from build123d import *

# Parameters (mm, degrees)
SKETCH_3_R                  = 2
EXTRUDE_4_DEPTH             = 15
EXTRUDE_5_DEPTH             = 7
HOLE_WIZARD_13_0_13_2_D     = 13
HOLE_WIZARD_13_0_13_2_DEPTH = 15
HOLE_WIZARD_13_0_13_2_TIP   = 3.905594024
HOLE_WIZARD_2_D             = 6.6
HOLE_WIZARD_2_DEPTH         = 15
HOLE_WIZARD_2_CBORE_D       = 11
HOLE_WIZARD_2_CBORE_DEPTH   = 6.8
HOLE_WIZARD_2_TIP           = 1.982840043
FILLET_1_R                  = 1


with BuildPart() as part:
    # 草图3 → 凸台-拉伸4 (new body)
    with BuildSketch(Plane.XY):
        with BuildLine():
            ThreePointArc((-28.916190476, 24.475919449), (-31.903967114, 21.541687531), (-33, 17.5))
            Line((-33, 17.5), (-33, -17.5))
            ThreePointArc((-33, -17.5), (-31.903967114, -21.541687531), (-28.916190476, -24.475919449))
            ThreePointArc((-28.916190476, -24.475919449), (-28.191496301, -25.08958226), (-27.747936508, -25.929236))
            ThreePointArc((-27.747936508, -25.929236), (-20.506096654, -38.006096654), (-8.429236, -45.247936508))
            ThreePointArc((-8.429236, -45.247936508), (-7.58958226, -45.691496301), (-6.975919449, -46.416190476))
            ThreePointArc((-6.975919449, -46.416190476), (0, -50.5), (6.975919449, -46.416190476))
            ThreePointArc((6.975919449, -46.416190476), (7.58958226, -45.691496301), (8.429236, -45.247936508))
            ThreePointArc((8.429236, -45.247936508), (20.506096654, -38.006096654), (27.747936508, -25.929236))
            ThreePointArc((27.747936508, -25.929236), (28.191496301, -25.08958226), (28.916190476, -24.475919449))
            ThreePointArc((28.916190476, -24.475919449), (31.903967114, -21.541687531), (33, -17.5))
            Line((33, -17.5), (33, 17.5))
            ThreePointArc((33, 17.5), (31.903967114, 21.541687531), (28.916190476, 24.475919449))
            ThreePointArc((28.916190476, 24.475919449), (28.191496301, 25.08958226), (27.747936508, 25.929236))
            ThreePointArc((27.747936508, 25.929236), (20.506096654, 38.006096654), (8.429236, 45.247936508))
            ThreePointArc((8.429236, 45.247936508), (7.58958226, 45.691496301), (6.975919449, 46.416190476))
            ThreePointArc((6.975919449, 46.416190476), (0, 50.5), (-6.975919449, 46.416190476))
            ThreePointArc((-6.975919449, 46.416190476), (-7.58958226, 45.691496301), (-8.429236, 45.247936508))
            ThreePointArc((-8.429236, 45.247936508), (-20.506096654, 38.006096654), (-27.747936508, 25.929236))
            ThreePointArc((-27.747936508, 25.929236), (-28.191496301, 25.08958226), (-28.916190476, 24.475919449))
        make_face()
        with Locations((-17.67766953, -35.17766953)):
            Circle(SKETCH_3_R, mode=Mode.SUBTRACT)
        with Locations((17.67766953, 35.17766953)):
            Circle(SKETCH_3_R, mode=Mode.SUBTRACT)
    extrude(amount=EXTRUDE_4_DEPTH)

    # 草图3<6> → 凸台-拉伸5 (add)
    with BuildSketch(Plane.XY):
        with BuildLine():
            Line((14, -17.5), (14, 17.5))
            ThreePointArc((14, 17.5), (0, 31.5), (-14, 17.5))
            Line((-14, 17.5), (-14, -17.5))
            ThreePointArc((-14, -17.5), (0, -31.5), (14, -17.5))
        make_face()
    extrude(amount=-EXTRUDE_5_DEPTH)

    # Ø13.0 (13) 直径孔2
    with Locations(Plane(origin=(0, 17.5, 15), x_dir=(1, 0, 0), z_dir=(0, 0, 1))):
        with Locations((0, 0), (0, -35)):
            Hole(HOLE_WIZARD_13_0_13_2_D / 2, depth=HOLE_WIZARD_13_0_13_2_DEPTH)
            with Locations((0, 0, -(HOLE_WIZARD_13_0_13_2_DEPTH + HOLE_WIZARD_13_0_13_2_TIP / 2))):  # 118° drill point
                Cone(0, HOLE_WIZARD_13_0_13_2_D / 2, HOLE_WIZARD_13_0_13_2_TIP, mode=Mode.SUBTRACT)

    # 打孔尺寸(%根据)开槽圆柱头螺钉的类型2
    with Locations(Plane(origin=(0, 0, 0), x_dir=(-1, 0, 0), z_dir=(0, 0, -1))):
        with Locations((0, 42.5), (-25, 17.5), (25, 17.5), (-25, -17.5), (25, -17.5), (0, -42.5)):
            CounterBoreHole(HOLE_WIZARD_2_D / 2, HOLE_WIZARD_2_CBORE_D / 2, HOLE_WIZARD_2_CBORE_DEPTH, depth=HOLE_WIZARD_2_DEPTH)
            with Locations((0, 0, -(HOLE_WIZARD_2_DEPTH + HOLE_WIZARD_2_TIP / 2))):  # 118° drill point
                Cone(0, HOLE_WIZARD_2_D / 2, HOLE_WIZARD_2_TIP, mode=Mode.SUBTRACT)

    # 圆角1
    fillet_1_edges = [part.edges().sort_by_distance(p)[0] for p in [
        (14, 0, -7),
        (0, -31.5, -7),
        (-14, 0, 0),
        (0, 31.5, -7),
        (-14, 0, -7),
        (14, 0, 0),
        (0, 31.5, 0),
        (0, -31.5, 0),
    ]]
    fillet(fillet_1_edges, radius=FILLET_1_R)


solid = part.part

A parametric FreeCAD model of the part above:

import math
import FreeCAD as App
import Part
import Sketcher
Q = App.Units.Quantity


def edges_at(feature, points):
    """Names of the edges that pass closest to the given points."""
    edges = feature.Shape.Edges
    near = lambda p: min(range(len(edges)), key=lambda i: edges[i].distToShape(Part.Vertex(*p))[0])
    return sorted({f"Edge{near(p) + 1}" for p in points})

doc = App.newDocument("Part")
body = doc.addObject("PartDesign::Body", "Body")

# Sketch on XY plane
sketch1 = body.newObject("Sketcher::SketchObject", "Sketch")
sketch1.AttachmentSupport = (doc.getObject("XY_Plane"), [""])
sketch1.MapMode = "FlatFace"
sketch1.addGeometry([
    Part.ArcOfCircle(Part.Circle(App.Vector(-25, 17.5, 0), App.Vector(0, 0, 1), 8), math.radians(119), math.radians(180)),  # 0
    Part.LineSegment(App.Vector(-33, 17.5, 0), App.Vector(-33, -17.5, 0)),  # 1
    Part.ArcOfCircle(Part.Circle(App.Vector(-25, -17.5, 0), App.Vector(0, 0, 1), 8), math.radians(180), math.radians(241)),  # 2
    Part.ArcOfCircle(Part.Circle(App.Vector(-30.1, -26.7, 0), App.Vector(0, 0, 1), 2.5), math.radians(17), math.radians(61)),  # 3
    Part.ArcOfCircle(Part.Circle(App.Vector(0, -17.5, 0), App.Vector(0, 0, 1), 29), math.radians(-163), math.radians(-107)),  # 4
    Part.ArcOfCircle(Part.Circle(App.Vector(-9.2, -47.6, 0), App.Vector(0, 0, 1), 2.5), math.radians(29), math.radians(73)),  # 5
    Part.ArcOfCircle(Part.Circle(App.Vector(0, -42.5, 0), App.Vector(0, 0, 1), 8), math.radians(-151), math.radians(-29)),  # 6
    Part.ArcOfCircle(Part.Circle(App.Vector(9.2, -47.6, 0), App.Vector(0, 0, 1), 2.5), math.radians(107), math.radians(151)),  # 7
    Part.ArcOfCircle(Part.Circle(App.Vector(0, -17.5, 0), App.Vector(0, 0, 1), 29), math.radians(-73), math.radians(-17)),  # 8
    Part.ArcOfCircle(Part.Circle(App.Vector(30.1, -26.7, 0), App.Vector(0, 0, 1), 2.5), math.radians(119), math.radians(163)),  # 9
    Part.ArcOfCircle(Part.Circle(App.Vector(25, -17.5, 0), App.Vector(0, 0, 1), 8), math.radians(-61), math.radians(0)),  # 10
    Part.LineSegment(App.Vector(33, -17.5, 0), App.Vector(33, 17.5, 0)),  # 11
    Part.ArcOfCircle(Part.Circle(App.Vector(25, 17.5, 0), App.Vector(0, 0, 1), 8), math.radians(0), math.radians(61)),  # 12
    Part.ArcOfCircle(Part.Circle(App.Vector(30.1, 26.7, 0), App.Vector(0, 0, 1), 2.5), math.radians(-163), math.radians(-119)),  # 13
    Part.ArcOfCircle(Part.Circle(App.Vector(0, 17.5, 0), App.Vector(0, 0, 1), 29), math.radians(17), math.radians(73)),  # 14
    Part.ArcOfCircle(Part.Circle(App.Vector(9.2, 47.6, 0), App.Vector(0, 0, 1), 2.5), math.radians(-151), math.radians(-107)),  # 15
    Part.ArcOfCircle(Part.Circle(App.Vector(0, 42.5, 0), App.Vector(0, 0, 1), 8), math.radians(29), math.radians(151)),  # 16
    Part.ArcOfCircle(Part.Circle(App.Vector(-9.2, 47.6, 0), App.Vector(0, 0, 1), 2.5), math.radians(-73), math.radians(-29)),  # 17
    Part.ArcOfCircle(Part.Circle(App.Vector(0, 17.5, 0), App.Vector(0, 0, 1), 29), math.radians(107), math.radians(163)),  # 18
    Part.ArcOfCircle(Part.Circle(App.Vector(-30.1, 26.7, 0), App.Vector(0, 0, 1), 2.5), math.radians(-61), math.radians(-17)),  # 19
    Part.Circle(App.Vector(-17.7, -35.2, 0), App.Vector(0, 0, 1), 2),  # 20
    Part.Circle(App.Vector(17.7, 35.2, 0), App.Vector(0, 0, 1), 2),  # 21
], False)
sketch1.addConstraint([
    Sketcher.Constraint("Tangent", 0, 2, 1, 1),
    Sketcher.Constraint("Tangent", 1, 2, 2, 1),
    Sketcher.Constraint("Tangent", 2, 2, 3, 2),
    Sketcher.Constraint("Tangent", 3, 1, 4, 1),
    Sketcher.Constraint("Tangent", 4, 2, 5, 2),
    Sketcher.Constraint("Tangent", 5, 1, 6, 1),
    Sketcher.Constraint("Tangent", 6, 2, 7, 2),
    Sketcher.Constraint("Tangent", 7, 1, 8, 1),
    Sketcher.Constraint("Tangent", 8, 2, 9, 2),
    Sketcher.Constraint("Tangent", 9, 1, 10, 1),
    Sketcher.Constraint("Tangent", 10, 2, 11, 1),
    Sketcher.Constraint("Tangent", 11, 2, 12, 1),
    Sketcher.Constraint("Tangent", 12, 2, 13, 2),
    Sketcher.Constraint("Tangent", 13, 1, 14, 1),
    Sketcher.Constraint("Tangent", 14, 2, 15, 2),
    Sketcher.Constraint("Tangent", 15, 1, 16, 1),
    Sketcher.Constraint("Tangent", 16, 2, 17, 2),
    Sketcher.Constraint("Tangent", 17, 1, 18, 1),
    Sketcher.Constraint("Tangent", 18, 2, 19, 2),
    Sketcher.Constraint("Tangent", 19, 1, 0, 1),
    Sketcher.Constraint("Vertical", 1),
    Sketcher.Constraint("Vertical", 11),
    Sketcher.Constraint("Coincident", 8, 3, 4, 3),
    Sketcher.Constraint("Coincident", 18, 3, 14, 3),
    Sketcher.Constraint("Equal", 0, 2),
    Sketcher.Constraint("Equal", 3, 5),
    Sketcher.Constraint("Equal", 2, 6),
    Sketcher.Constraint("Equal", 5, 7),
    Sketcher.Constraint("Equal", 4, 8),
    Sketcher.Constraint("Equal", 7, 9),
    Sketcher.Constraint("Equal", 6, 10),
    Sketcher.Constraint("Equal", 10, 12),
    Sketcher.Constraint("Equal", 9, 13),
    Sketcher.Constraint("Equal", 8, 14),
    Sketcher.Constraint("Equal", 13, 15),
    Sketcher.Constraint("Equal", 12, 16),
    Sketcher.Constraint("Equal", 15, 17),
    Sketcher.Constraint("Equal", 14, 18),
    Sketcher.Constraint("Equal", 17, 19),
    Sketcher.Constraint("Equal", 20, 21),
    Sketcher.Constraint("Symmetric", 0, 3, 10, 3, -1, 1),
    Sketcher.Constraint("Symmetric", 3, 3, 13, 3, -1, 1),
    Sketcher.Constraint("Symmetric", 5, 3, 15, 3, -1, 1),
    Sketcher.Constraint("Symmetric", 20, 3, 21, 3, -1, 1),
    Sketcher.Constraint("Symmetric", 5, 3, 7, 3, -2),
    Sketcher.Constraint("PointOnObject", 16, 3, -2),
    Sketcher.Constraint("Horizontal", 2, 3, 4, 3),
    Sketcher.Constraint("Horizontal", 3, 3, 9, 3),
    Sketcher.Constraint("Diameter", 20, Q("4 mm")),
    Sketcher.Constraint("Radius", 0, Q("8 mm")),
    Sketcher.Constraint("Radius", 4, Q("29 mm")),
    Sketcher.Constraint("Radius", 3, Q("2.5 mm")),
    Sketcher.Constraint("DistanceY", 1, 2, 1, 1, Q("35 mm")),
    Sketcher.Constraint("DistanceX", 0, 3, -1, 1, Q("25 mm")),
    Sketcher.Constraint("DistanceY", 6, 3, 4, 3, Q("25 mm")),
    Sketcher.Constraint("DistanceX", 20, 3, -1, 1, Q("17.67767 mm")),
    Sketcher.Constraint("DistanceY", 20, 3, -1, 1, Q("35.17767 mm")),
])
pad1 = body.newObject("PartDesign::Pad", "Pad")
pad1.Profile = sketch1
pad1.Length = 15

# Sketch on XY plane
sketch2 = body.newObject("Sketcher::SketchObject", "Sketch001")
sketch2.AttachmentSupport = (doc.getObject("XY_Plane"), [""])
sketch2.MapMode = "FlatFace"
sketch2.addGeometry([
    Part.LineSegment(App.Vector(14, -18, 0), App.Vector(14, 18, 0)),
    Part.ArcOfCircle(Part.Circle(App.Vector(0, 18, 0), App.Vector(0, 0, 1), 14), math.radians(0), math.radians(180)),
    Part.LineSegment(App.Vector(-14, 18, 0), App.Vector(-14, -18, 0)),
    Part.ArcOfCircle(Part.Circle(App.Vector(0, -18, 0), App.Vector(0, 0, 1), 14), math.radians(180), math.radians(360)),
], False)
sketch2.addConstraint([
    Sketcher.Constraint("Tangent", 0, 2, 1, 1),
    Sketcher.Constraint("Tangent", 1, 2, 2, 1),
    Sketcher.Constraint("Tangent", 2, 2, 3, 1),
    Sketcher.Constraint("Tangent", 3, 2, 0, 1),
    Sketcher.Constraint("Vertical", 0),
    Sketcher.Constraint("Vertical", 2),
    Sketcher.Constraint("Symmetric", 1, 3, 3, 3, -1, 1),
    Sketcher.Constraint("Radius", 1, Q("14 mm")),
    Sketcher.Constraint("DistanceY", 0, 1, 0, 2, Q("35 mm")),
])
pad2 = body.newObject("PartDesign::Pad", "Pad001")
pad2.Profile = sketch2
pad2.Length = 7
pad2.Reversed = True

# Sketch on XY plane
sketch3 = body.newObject("Sketcher::SketchObject", "Sketch002")
sketch3.AttachmentSupport = (doc.getObject("XY_Plane"), [""])
sketch3.MapMode = "FlatFace"
sketch3.AttachmentOffset = App.Placement(App.Vector(0, 0, 15), App.Rotation())
sketch3.addGeometry([
    Part.Circle(App.Vector(0, 18, 0), App.Vector(0, 0, 1), 6),
    Part.Circle(App.Vector(0, -18, 0), App.Vector(0, 0, 1), 6),
], False)
sketch3.addConstraint([
    Sketcher.Constraint("Equal", 0, 1),
    Sketcher.Constraint("Symmetric", 0, 3, 1, 3, -1, 1),
    Sketcher.Constraint("PointOnObject", 0, 3, -2),
    Sketcher.Constraint("Diameter", 0, Q("13 mm")),
    Sketcher.Constraint("DistanceY", 1, 3, 0, 3, Q("35 mm")),
])
doc.recompute()
hole = body.newObject("PartDesign::Hole", "Hole")
hole.Profile = sketch3
hole.ThreadType = "None"
hole.Diameter = 13
hole.DepthType = "Dimension"
hole.Depth = 15
hole.DrillPoint = "Angled"
hole.DrillPointAngle = 118

# Sketch on XY plane
sketch4 = body.newObject("Sketcher::SketchObject", "Sketch003")
sketch4.AttachmentSupport = (doc.getObject("XY_Plane"), [""])
sketch4.MapMode = "FlatFace"
sketch4.addGeometry([
    Part.Circle(App.Vector(0, 42.5, 0), App.Vector(0, 0, 1), 3.3),  # 0
    Part.Circle(App.Vector(25, 17.5, 0), App.Vector(0, 0, 1), 3.3),  # 1
    Part.Circle(App.Vector(-25, 17.5, 0), App.Vector(0, 0, 1), 3.3),  # 2
    Part.Circle(App.Vector(25, -17.5, 0), App.Vector(0, 0, 1), 3.3),  # 3
    Part.Circle(App.Vector(-25, -17.5, 0), App.Vector(0, 0, 1), 3.3),  # 4
    Part.Circle(App.Vector(0, -42.5, 0), App.Vector(0, 0, 1), 3.3),  # 5
], False)
sketch4.addConstraint([
    Sketcher.Constraint("Equal", 0, 1),
    Sketcher.Constraint("Equal", 1, 2),
    Sketcher.Constraint("Equal", 2, 3),
    Sketcher.Constraint("Equal", 3, 4),
    Sketcher.Constraint("Equal", 4, 5),
    Sketcher.Constraint("Symmetric", 2, 3, 3, 3, -1, 1),
    Sketcher.Constraint("Symmetric", 1, 3, 4, 3, -1, 1),
    Sketcher.Constraint("Symmetric", 0, 3, 5, 3, -1, 1),
    Sketcher.Constraint("Symmetric", 1, 3, 2, 3, -2),
    Sketcher.Constraint("PointOnObject", 0, 3, -2),
    Sketcher.Constraint("Diameter", 0, Q("6.6 mm")),
    Sketcher.Constraint("DistanceX", -1, 1, 1, 3, Q("25 mm")),
    Sketcher.Constraint("DistanceY", 1, 3, 0, 3, Q("25 mm")),
    Sketcher.Constraint("DistanceY", 3, 3, 1, 3, Q("35 mm")),
])
doc.recompute()
hole2 = body.newObject("PartDesign::Hole", "Hole001")
hole2.Profile = sketch4
hole2.ThreadType = "None"
hole2.Diameter = 6.6
hole2.DepthType = "Dimension"
hole2.Depth = 15
hole2.DrillPoint = "Angled"
hole2.DrillPointAngle = 118
hole2.HoleCutType = "Counterbore"
hole2.HoleCutDiameter = 11
hole2.HoleCutDepth = 6.8
hole2.Reversed = True
doc.recompute()

fillet = body.newObject("PartDesign::Fillet", "Fillet")
fillet.Base = (hole2, edges_at(hole2, [
    (14, 0, -7),
    (0, -31.5, -7),
    (-14, 0, 0),
    (0, 31.5, -7),
    (-14, 0, -7),
    (14, 0, 0),
    (0, 31.5, 0),
    (0, -31.5, 0),
]))
fillet.Radius = 1

doc.recompute()
